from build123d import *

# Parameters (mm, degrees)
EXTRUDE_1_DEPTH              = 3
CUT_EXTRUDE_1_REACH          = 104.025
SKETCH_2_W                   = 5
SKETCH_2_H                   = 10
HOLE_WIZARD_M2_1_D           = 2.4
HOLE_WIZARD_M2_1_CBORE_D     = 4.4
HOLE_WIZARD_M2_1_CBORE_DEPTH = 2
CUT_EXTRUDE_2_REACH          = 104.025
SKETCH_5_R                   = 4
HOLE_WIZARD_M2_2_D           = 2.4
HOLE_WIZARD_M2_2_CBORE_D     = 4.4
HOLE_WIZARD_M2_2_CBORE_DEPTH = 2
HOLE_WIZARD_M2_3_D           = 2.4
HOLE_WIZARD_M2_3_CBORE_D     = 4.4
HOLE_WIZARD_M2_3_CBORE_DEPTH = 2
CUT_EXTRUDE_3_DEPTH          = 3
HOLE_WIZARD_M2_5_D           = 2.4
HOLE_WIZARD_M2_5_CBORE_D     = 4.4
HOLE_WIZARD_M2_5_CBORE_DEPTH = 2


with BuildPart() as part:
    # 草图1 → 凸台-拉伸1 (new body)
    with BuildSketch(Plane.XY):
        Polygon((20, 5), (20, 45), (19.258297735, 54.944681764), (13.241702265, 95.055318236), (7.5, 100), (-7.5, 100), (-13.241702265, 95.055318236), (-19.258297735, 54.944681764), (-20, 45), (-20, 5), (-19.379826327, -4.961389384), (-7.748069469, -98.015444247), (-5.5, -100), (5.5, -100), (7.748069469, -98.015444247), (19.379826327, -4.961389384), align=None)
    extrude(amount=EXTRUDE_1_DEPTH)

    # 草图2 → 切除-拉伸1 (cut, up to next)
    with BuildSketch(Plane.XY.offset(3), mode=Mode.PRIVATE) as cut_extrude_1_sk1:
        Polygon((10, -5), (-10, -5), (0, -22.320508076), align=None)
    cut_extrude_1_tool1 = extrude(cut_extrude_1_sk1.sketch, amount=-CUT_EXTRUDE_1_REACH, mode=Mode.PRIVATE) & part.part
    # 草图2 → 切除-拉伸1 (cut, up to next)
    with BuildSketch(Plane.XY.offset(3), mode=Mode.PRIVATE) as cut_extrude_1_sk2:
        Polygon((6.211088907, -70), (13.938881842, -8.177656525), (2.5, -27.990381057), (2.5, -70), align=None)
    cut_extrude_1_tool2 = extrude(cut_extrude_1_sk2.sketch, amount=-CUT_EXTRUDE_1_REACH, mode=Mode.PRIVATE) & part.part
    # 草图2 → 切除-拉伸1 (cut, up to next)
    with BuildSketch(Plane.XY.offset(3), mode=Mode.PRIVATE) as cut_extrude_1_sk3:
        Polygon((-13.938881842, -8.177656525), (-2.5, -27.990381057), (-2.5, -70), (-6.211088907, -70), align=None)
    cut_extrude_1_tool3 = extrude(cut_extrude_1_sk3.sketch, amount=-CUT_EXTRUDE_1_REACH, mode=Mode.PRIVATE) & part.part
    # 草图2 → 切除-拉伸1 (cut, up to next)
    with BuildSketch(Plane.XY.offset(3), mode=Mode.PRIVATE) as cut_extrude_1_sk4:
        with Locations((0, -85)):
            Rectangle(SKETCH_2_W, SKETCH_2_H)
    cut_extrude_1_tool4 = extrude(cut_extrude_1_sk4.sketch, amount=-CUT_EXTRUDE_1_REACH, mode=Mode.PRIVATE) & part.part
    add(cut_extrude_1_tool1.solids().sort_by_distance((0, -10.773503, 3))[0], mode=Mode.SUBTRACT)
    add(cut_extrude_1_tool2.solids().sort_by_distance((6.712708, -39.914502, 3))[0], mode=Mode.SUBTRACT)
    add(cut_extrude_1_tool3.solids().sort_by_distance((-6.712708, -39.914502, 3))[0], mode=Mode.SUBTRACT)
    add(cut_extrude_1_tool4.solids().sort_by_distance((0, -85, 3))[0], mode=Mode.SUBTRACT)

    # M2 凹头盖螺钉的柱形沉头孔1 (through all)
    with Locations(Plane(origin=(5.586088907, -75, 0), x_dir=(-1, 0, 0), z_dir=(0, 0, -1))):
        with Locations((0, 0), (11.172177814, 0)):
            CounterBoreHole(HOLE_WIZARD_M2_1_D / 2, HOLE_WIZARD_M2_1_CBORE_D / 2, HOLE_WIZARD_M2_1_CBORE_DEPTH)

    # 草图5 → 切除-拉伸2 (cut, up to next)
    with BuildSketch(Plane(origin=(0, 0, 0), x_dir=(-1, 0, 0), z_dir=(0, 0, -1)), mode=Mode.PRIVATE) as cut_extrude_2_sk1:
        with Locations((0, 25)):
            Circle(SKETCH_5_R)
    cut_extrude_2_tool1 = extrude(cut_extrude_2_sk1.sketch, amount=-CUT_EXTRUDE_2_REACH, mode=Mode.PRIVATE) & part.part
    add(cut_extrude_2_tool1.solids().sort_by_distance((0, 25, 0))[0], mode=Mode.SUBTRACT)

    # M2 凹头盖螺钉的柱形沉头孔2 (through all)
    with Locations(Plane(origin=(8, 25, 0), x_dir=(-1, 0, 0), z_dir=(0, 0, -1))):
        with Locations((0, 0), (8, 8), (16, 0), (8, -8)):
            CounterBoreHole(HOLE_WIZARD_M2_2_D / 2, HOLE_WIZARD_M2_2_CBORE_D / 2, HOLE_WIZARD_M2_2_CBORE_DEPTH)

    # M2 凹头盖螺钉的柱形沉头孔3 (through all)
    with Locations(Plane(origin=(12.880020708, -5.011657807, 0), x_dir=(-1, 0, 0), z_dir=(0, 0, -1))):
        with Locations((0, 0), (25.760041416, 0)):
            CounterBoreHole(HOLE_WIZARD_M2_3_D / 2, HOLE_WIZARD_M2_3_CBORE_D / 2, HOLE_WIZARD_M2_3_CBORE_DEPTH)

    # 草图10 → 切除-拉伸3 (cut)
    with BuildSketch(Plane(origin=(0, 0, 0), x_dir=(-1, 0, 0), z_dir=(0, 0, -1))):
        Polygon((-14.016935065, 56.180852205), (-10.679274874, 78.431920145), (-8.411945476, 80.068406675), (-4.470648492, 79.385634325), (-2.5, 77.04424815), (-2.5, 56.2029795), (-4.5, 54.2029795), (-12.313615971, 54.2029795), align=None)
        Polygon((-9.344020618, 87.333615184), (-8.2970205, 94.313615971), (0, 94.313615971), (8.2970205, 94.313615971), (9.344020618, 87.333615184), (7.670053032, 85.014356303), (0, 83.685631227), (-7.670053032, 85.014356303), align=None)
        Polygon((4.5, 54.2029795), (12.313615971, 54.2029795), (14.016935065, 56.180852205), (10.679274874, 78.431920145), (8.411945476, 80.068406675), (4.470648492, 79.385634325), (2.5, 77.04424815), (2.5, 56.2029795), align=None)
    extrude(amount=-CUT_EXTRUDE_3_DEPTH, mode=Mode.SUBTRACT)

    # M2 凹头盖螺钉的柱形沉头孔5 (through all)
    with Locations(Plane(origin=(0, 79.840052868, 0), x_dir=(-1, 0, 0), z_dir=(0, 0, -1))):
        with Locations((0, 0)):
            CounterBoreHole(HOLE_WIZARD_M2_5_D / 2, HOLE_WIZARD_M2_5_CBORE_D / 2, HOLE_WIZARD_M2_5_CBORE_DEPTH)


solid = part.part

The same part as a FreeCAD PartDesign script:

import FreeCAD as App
import Part
import Sketcher
from FreeCAD import Vector
Q = App.Units.Quantity


def add_polygon(sketch, points):
    """Adds a closed chain of lines whose ends are joined by coincident constraints."""
    first, n = sketch.GeometryCount, len(points)
    for a, b in zip(points, points[1:] + points[:1]):
        sketch.addGeometry(Part.LineSegment(App.Vector(*a, 0), App.Vector(*b, 0)), False)
    for i in range(n):
        sketch.addConstraint(Sketcher.Constraint("Coincident", first + i, 2, first + (i + 1) % n, 1))

doc = App.newDocument("Part")
body = doc.addObject("PartDesign::Body", "Body")

sketch1 = body.newObject("Sketcher::SketchObject", "Sketch")
sketch1.AttachmentSupport = (doc.getObject("XY_Plane"), [""])
sketch1.MapMode = "FlatFace"
add_polygon(sketch1, [(20, 5), (20, 45), (19.3, 54.9), (13.2, 95.1), (7.5, 100), (-7.5, 100), (-13.2, 95.1), (-19.3, 54.9), (-20, 45), (-20, 5), (-19.4, -5), (-7.7, -98), (-5.5, -100), (5.5, -100), (7.7, -98), (19.4, -5)])
sketch1.addConstraint(Sketcher.Constraint("Vertical", 0))
sketch1.addConstraint(Sketcher.Constraint("Horizontal", 4))
sketch1.addConstraint(Sketcher.Constraint("Vertical", 8))
sketch1.addConstraint(Sketcher.Constraint("Horizontal", 12))
sketch1.addConstraint(Sketcher.Constraint("Symmetric", 2, 2, 5, 2, -2))
sketch1.addConstraint(Sketcher.Constraint("Symmetric", 1, 2, 6, 2, -2))
sketch1.addConstraint(Sketcher.Constraint("Symmetric", 0, 2, 7, 2, -2))
sketch1.addConstraint(Sketcher.Constraint("Symmetric", 10, 2, 13, 2, -2))
sketch1.addConstraint(Sketcher.Constraint("Symmetric", 9, 2, 14, 2, -2))
sketch1.addConstraint(Sketcher.Constraint("Horizontal", 8, 2, 15, 2))
sketch1.addConstraint(Sketcher.Constraint("Equal", 3, 5))
sketch1.addConstraint(Sketcher.Constraint("Equal", 11, 13))
sketch1.addConstraint(Sketcher.Constraint("DistanceX", 4, 2, 4, 1, Q("15 mm")))
sketch1.addConstraint(Sketcher.Constraint("DistanceX", 12, 1, 12, 2, Q("11 mm")))
sketch1.addConstraint(Sketcher.Constraint("DistanceY", 0, 1, 0, 2, Q("40 mm")))
sketch1.addConstraint(Sketcher.Constraint("DistanceX", -1, 1, 0, 2, Q("20 mm")))
sketch1.addConstraint(Sketcher.Constraint("DistanceY", -1, 1, 0, 2, Q("45 mm")))
sketch1.addConstraint(Sketcher.Constraint("DistanceY", -1, 1, 3, 2, Q("100 mm")))
sketch1.addConstraint(Sketcher.Constraint("DistanceY", 11, 2, -1, 1, Q("100 mm")))
sketch1.addConstraint(Sketcher.Constraint("DistanceX", 5, 2, 1, 2, Q("32.5 mm")))
sketch1.addConstraint(Sketcher.Constraint("Distance", 2, Q("40.559371 mm")))
sketch1.addConstraint(Sketcher.Constraint("Distance", 10, Q("93.778222 mm")))
sketch1.addConstraint(Sketcher.Constraint("DistanceY", -1, 1, 1, 2, Q("54.944682 mm")))
sketch1.addConstraint(Sketcher.Constraint("DistanceY", -1, 1, 2, 2, Q("95.055318 mm")))
sketch1.addConstraint(Sketcher.Constraint("DistanceY", 9, 2, -1, 1, Q("4.961389 mm")))
sketch1.addConstraint(Sketcher.Constraint("DistanceX", 10, 2, -1, 1, Q("7.748069 mm")))
sketch1.addConstraint(Sketcher.Constraint("DistanceX", 9, 2, 6, 2, Q("0.121529 mm")))
pad1 = body.newObject("PartDesign::Pad", "Pad")
pad1.Profile = sketch1
pad1.Length = 3

sketch2 = body.newObject("Sketcher::SketchObject", "Sketch001")
sketch2.AttachmentSupport = (doc.getObject("XY_Plane"), [""])
sketch2.MapMode = "FlatFace"
sketch2.AttachmentOffset = App.Placement(Vector(0, 0, 3), App.Rotation())
add_polygon(sketch2, [(10, -5), (-10, -5), (0, -22)])
sketch2.addConstraint(Sketcher.Constraint("Horizontal", 0))
sketch2.addConstraint(Sketcher.Constraint("PointOnObject", 1, 2, -2))
sketch2.addConstraint(Sketcher.Constraint("Equal", 1, 2))
sketch2.addConstraint(Sketcher.Constraint("DistanceX", 0, 2, 0, 1, Q("20 mm")))
sketch2.addConstraint(Sketcher.Constraint("Angle", 1, Q("-60 deg")))
sketch2.addConstraint(Sketcher.Constraint("DistanceY", 0, 2, -1, 1, Q("5 mm")))
pocket1 = body.newObject("PartDesign::Pocket", "Pocket")
pocket1.Profile = sketch2
pocket1.Type = "UpToFirst"

sketch3 = body.newObject("Sketcher::SketchObject", "Sketch002")
sketch3.AttachmentSupport = (doc.getObject("XY_Plane"), [""])
sketch3.MapMode = "FlatFace"
sketch3.AttachmentOffset = App.Placement(Vector(0, 0, 3), App.Rotation())
add_polygon(sketch3, [(6.2, -70), (13.9, -8.2), (2.5, -28), (2.5, -70)])
sketch3.addConstraint(Sketcher.Constraint("Vertical", 2))
sketch3.addConstraint(Sketcher.Constraint("Horizontal", 3))
sketch3.addConstraint(Sketcher.Constraint("Angle", 1, Q("-120 deg")))
sketch3.addConstraint(Sketcher.Constraint("DistanceY", 2, 2, -1, 1, Q("70 mm")))
sketch3.addConstraint(Sketcher.Constraint("DistanceX", -1, 1, 1, 2, Q("2.5 mm")))
sketch3.addConstraint(Sketcher.Constraint("DistanceX", 3, 1, 3, 2, Q("3.711089 mm")))
sketch3.addConstraint(Sketcher.Constraint("DistanceY", 2, 2, 2, 1, Q("42.009619 mm")))
sketch3.addConstraint(Sketcher.Constraint("Distance", 0, Q("62.303458 mm")))
pocket2 = body.newObject("PartDesign::Pocket", "Pocket001")
pocket2.Profile = sketch3
pocket2.Type = "UpToFirst"

sketch4 = body.newObject("Sketcher::SketchObject", "Sketch003")
sketch4.AttachmentSupport = (doc.getObject("XY_Plane"), [""])
sketch4.MapMode = "FlatFace"
sketch4.AttachmentOffset = App.Placement(Vector(0, 0, 3), App.Rotation())
add_polygon(sketch4, [(-2.5, -28), (-13.9, -8.2), (-6.2, -70), (-2.5, -70)])
sketch4.addConstraint(Sketcher.Constraint("Horizontal", 2))
sketch4.addConstraint(Sketcher.Constraint("Vertical", 3))
sketch4.addConstraint(Sketcher.Constraint("Angle", 0, Q("120 deg")))
sketch4.addConstraint(Sketcher.Constraint("DistanceY", 1, 2, -1, 1, Q("70 mm")))
sketch4.addConstraint(Sketcher.Constraint("DistanceX", 2, 2, -1, 1, Q("2.5 mm")))
sketch4.addConstraint(Sketcher.Constraint("DistanceX", 2, 1, 2, 2, Q("3.711089 mm")))
sketch4.addConstraint(Sketcher.Constraint("DistanceY", 3, 1, 3, 2, Q("42.009619 mm")))
sketch4.addConstraint(Sketcher.Constraint("Distance", 1, Q("62.303458 mm")))
pocket3 = body.newObject("PartDesign::Pocket", "Pocket002")
pocket3.Profile = sketch4
pocket3.Type = "UpToFirst"

sketch5 = body.newObject("Sketcher::SketchObject", "Sketch004")
sketch5.AttachmentSupport = (doc.getObject("XY_Plane"), [""])
sketch5.MapMode = "FlatFace"
sketch5.AttachmentOffset = App.Placement(Vector(0, 0, 3), App.Rotation())
add_polygon(sketch5, [(-2, -80), (-2, -90), (2, -90), (2, -80)])
sketch5.addConstraint(Sketcher.Constraint("Vertical", 0))
sketch5.addConstraint(Sketcher.Constraint("Horizontal", 1))
sketch5.addConstraint(Sketcher.Constraint("Vertical", 2))
sketch5.addConstraint(Sketcher.Constraint("Horizontal", 3))
sketch5.addConstraint(Sketcher.Constraint("DistanceX", 1, 1, 1, 2, Q("5 mm")))
sketch5.addConstraint(Sketcher.Constraint("DistanceY", 0, 2, 0, 1, Q("10 mm")))
sketch5.addConstraint(Sketcher.Constraint("DistanceY", 0, 2, -1, 1, Q("90 mm")))
sketch5.addConstraint(Sketcher.Constraint("DistanceX", 0, 2, -1, 1, Q("2.5 mm")))
pocket4 = body.newObject("PartDesign::Pocket", "Pocket003")
pocket4.Profile = sketch5
pocket4.Type = "UpToFirst"

sketch6 = body.newObject("Sketcher::SketchObject", "Sketch005")
sketch6.AttachmentSupport = (doc.getObject("XY_Plane"), [""])
sketch6.MapMode = "FlatFace"
sketch6.addGeometry(Part.Circle(Vector(5.6, -75, 0), Vector(0, 0, 1), 1.2), False)
sketch6.addGeometry(Part.Circle(Vector(-5.6, -75, 0), Vector(0, 0, 1), 1.2), False)
sketch6.addConstraint(Sketcher.Constraint("Equal", 0, 1))
sketch6.addConstraint(Sketcher.Constraint("Symmetric", 0, 3, 1, 3, -2))
sketch6.addConstraint(Sketcher.Constraint("Diameter", 0, Q("2.4 mm")))
sketch6.addConstraint(Sketcher.Constraint("DistanceY", 0, 3, -1, 1, Q("75 mm")))
sketch6.addConstraint(Sketcher.Constraint("DistanceX", -1, 1, 0, 3, Q("5.586089 mm")))
doc.recompute()
hole = body.newObject("PartDesign::Hole", "Hole")
hole.Profile = sketch6
hole.ThreadType = "None"
hole.Diameter = 2.4
hole.DepthType = "ThroughAll"
hole.HoleCutType = "Counterbore"
hole.HoleCutDiameter = 4.4
hole.HoleCutDepth = 2
hole.Reversed = True

sketch7 = body.newObject("Sketcher::SketchObject", "Sketch006")
sketch7.AttachmentSupport = (doc.getObject("XY_Plane"), [""])
sketch7.MapMode = "FlatFace"
sketch7.addGeometry(Part.Circle(Vector(0, 25, 0), Vector(0, 0, 1), 4), False)
sketch7.addConstraint(Sketcher.Constraint("PointOnObject", 0, 3, -2))
sketch7.addConstraint(Sketcher.Constraint("Diameter", 0, Q("8 mm")))
sketch7.addConstraint(Sketcher.Constraint("DistanceY", -1, 1, 0, 3, Q("25 mm")))
pocket5 = body.newObject("PartDesign::Pocket", "Pocket004")
pocket5.Profile = sketch7
pocket5.Type = "UpToFirst"
pocket5.Reversed = True

sketch8 = body.newObject("Sketcher::SketchObject", "Sketch007")
sketch8.AttachmentSupport = (doc.getObject("XY_Plane"), [""])
sketch8.MapMode = "FlatFace"
sketch8.addGeometry(Part.Circle(Vector(8, 25, 0), Vector(0, 0, 1), 1.2), False)
sketch8.addGeometry(Part.Circle(Vector(0, 33, 0), Vector(0, 0, 1), 1.2), False)
sketch8.addGeometry(Part.Circle(Vector(-8, 25, 0), Vector(0, 0, 1), 1.2), False)
sketch8.addGeometry(Part.Circle(Vector(0, 17, 0), Vector(0, 0, 1), 1.2), False)
sketch8.addConstraint(Sketcher.Constraint("Equal", 0, 1))
sketch8.addConstraint(Sketcher.Constraint("Equal", 1, 2))
sketch8.addConstraint(Sketcher.Constraint("Equal", 2, 3))
sketch8.addConstraint(Sketcher.Constraint("Symmetric", 0, 3, 2, 3, -2))
sketch8.addConstraint(Sketcher.Constraint("PointOnObject", 1, 3, -2))
sketch8.addConstraint(Sketcher.Constraint("PointOnObject", 3, 3, -2))
sketch8.addConstraint(Sketcher.Constraint("Diameter", 0, Q("2.4 mm")))
sketch8.addConstraint(Sketcher.Constraint("DistanceX", -1, 1, 0, 3, Q("8 mm")))
sketch8.addConstraint(Sketcher.Constraint("DistanceY", -1, 1, 0, 3, Q("25 mm")))
sketch8.addConstraint(Sketcher.Constraint("DistanceY", -1, 1, 1, 3, Q("33 mm")))
sketch8.addConstraint(Sketcher.Constraint("DistanceY", -1, 1, 3, 3, Q("17 mm")))
doc.recompute()
hole2 = body.newObject("PartDesign::Hole", "Hole001")
hole2.Profile = sketch8
hole2.ThreadType = "None"
hole2.Diameter = 2.4
hole2.DepthType = "ThroughAll"
hole2.HoleCutType = "Counterbore"
hole2.HoleCutDiameter = 4.4
hole2.HoleCutDepth = 2
hole2.Reversed = True

sketch9 = body.newObject("Sketcher::SketchObject", "Sketch008")
sketch9.AttachmentSupport = (doc.getObject("XY_Plane"), [""])
sketch9.MapMode = "FlatFace"
sketch9.addGeometry(Part.Circle(Vector(12.9, -5, 0), Vector(0, 0, 1), 1.2), False)
sketch9.addGeometry(Part.Circle(Vector(-12.9, -5, 0), Vector(0, 0, 1), 1.2), False)
sketch9.addConstraint(Sketcher.Constraint("Equal", 0, 1))
sketch9.addConstraint(Sketcher.Constraint("Symmetric", 0, 3, 1, 3, -2))
sketch9.addConstraint(Sketcher.Constraint("Diameter", 0, Q("2.4 mm")))
sketch9.addConstraint(Sketcher.Constraint("DistanceX", -1, 1, 0, 3, Q("12.880021 mm")))
sketch9.addConstraint(Sketcher.Constraint("DistanceY", 0, 3, -1, 1, Q("5.011658 mm")))
doc.recompute()
hole3 = body.newObject("PartDesign::Hole", "Hole002")
hole3.Profile = sketch9
hole3.ThreadType = "None"
hole3.Diameter = 2.4
hole3.DepthType = "ThroughAll"
hole3.HoleCutType = "Counterbore"
hole3.HoleCutDiameter = 4.4
hole3.HoleCutDepth = 2
hole3.Reversed = True

sketch10 = body.newObject("Sketcher::SketchObject", "Sketch009")
sketch10.AttachmentSupport = (doc.getObject("XY_Plane"), [""])
sketch10.MapMode = "FlatFace"
add_polygon(sketch10, [(10.7, 78.4), (14, 56.2), (12.3, 54.2), (4.5, 54.2), (2.5, 56.2), (2.5, 77), (4.5, 79.4), (8.4, 80.1)])
add_polygon(sketch10, [(8.3, 94.3), (9.3, 87.3), (7.7, 85), (0, 83.7), (-7.7, 85), (-9.3, 87.3), (-8.3, 94.3)])
add_polygon(sketch10, [(-4.5, 54.2), (-12.3, 54.2), (-14, 56.2), (-10.7, 78.4), (-8.4, 80.1), (-4.5, 79.4), (-2.5, 77), (-2.5, 56.2)])
sketch10.addConstraint(Sketcher.Constraint("Horizontal", 2))
sketch10.addConstraint(Sketcher.Constraint("Vertical", 4))
sketch10.addConstraint(Sketcher.Constraint("Horizontal", 14))
sketch10.addConstraint(Sketcher.Constraint("Horizontal", 15))
sketch10.addConstraint(Sketcher.Constraint("Vertical", 21))
sketch10.addConstraint(Sketcher.Constraint("Symmetric", 9, 2, 11, 2, -2))
sketch10.addConstraint(Sketcher.Constraint("Symmetric", 8, 2, 12, 2, -2))
sketch10.addConstraint(Sketcher.Constraint("Symmetric", 1, 2, 15, 2, -2))
sketch10.addConstraint(Sketcher.Constraint("Symmetric", 0, 2, 16, 2, -2))
sketch10.addConstraint(Sketcher.Constraint("Symmetric", 7, 2, 17, 2, -2))
sketch10.addConstraint(Sketcher.Constraint("Symmetric", 6, 2, 18, 2, -2))
sketch10.addConstraint(Sketcher.Constraint("Symmetric", 5, 2, 19, 2, -2))
sketch10.addConstraint(Sketcher.Constraint("Symmetric", 4, 2, 20, 2, -2))
sketch10.addConstraint(Sketcher.Constraint("PointOnObject", 10, 2, -2))
sketch10.addConstraint(Sketcher.Constraint("Parallel", 0, 8))
sketch10.addConstraint(Sketcher.Constraint("Perpendicular", 7, 9))
sketch10.addConstraint(Sketcher.Constraint("Parallel", 6, 10))
sketch10.addConstraint(Sketcher.Constraint("Parallel", 13, 17))
sketch10.addConstraint(Sketcher.Constraint("Perpendicular", 3, 22))
sketch10.addConstraint(Sketcher.Constraint("Horizontal", 3, 2, 21, 2))
sketch10.addConstraint(Sketcher.Constraint("Equal", 2, 15))
sketch10.addConstraint(Sketcher.Constraint("Distance", 6, Q("4 mm")))
sketch10.addConstraint(Sketcher.Constraint("DistanceX", 3, 2, 2, 2, Q("2 mm")))
sketch10.addConstraint(Sketcher.Constraint("DistanceX", 20, 2, 4, 2, Q("5 mm")))
sketch10.addConstraint(Sketcher.Constraint("Distance", 0, Q("22.5 mm")))
sketch10.addConstraint(Sketcher.Constraint("DistanceY", 12, 2, 13, 2, Q("6.980001 mm")))
sketch10.addConstraint(Sketcher.Constraint("DistanceX", 11, 2, 6, 2, Q("16.081999 mm")))
sketch10.addConstraint(Sketcher.Constraint("DistanceX", 12, 2, 13, 2, Q("1.047 mm")))
sketch10.addConstraint(Sketcher.Constraint("DistanceX", 14, 1, 14, 2, Q("16.594041 mm")))
sketch10.addConstraint(Sketcher.Constraint("DistanceY", 4, 1, 4, 2, Q("20.841269 mm")))
sketch10.addConstraint(Sketcher.Constraint("DistanceX", 11, 2, 5, 2, Q("12.140702 mm")))
sketch10.addConstraint(Sketcher.Constraint("DistanceX", 2, 2, 2, 1, Q("7.813616 mm")))
sketch10.addConstraint(Sketcher.Constraint("DistanceY", -1, 1, 1, 2, Q("54.202979 mm")))
sketch10.addConstraint(Sketcher.Constraint("DistanceX", -1, 1, 5, 2, Q("4.470648 mm")))
sketch10.addConstraint(Sketcher.Constraint("DistanceY", -1, 1, 7, 2, Q("78.43192 mm")))
sketch10.addConstraint(Sketcher.Constraint("DistanceY", -1, 1, 10, 2, Q("83.685631 mm")))
sketch10.addConstraint(Sketcher.Constraint("DistanceX", 1, 2, 0, 2, Q("1.703319 mm")))
sketch10.addConstraint(Sketcher.Constraint("DistanceY", 4, 2, 6, 2, Q("3.024159 mm")))
pocket6 = body.newObject("PartDesign::Pocket", "Pocket005")
pocket6.Profile = sketch10
pocket6.Length = 3
pocket6.Reversed = True

sketch11 = body.newObject("Sketcher::SketchObject", "Sketch010")
sketch11.AttachmentSupport = (doc.getObject("XY_Plane"), [""])
sketch11.MapMode = "FlatFace"
sketch11.addGeometry(Part.Circle(Vector(0, 79.8, 0), Vector(0, 0, 1), 1.2), False)
sketch11.addConstraint(Sketcher.Constraint("PointOnObject", 0, 3, -2))
sketch11.addConstraint(Sketcher.Constraint("Diameter", 0, Q("2.4 mm")))
sketch11.addConstraint(Sketcher.Constraint("DistanceY", -1, 1, 0, 3, Q("79.840053 mm")))
doc.recompute()
hole4 = body.newObject("PartDesign::Hole", "Hole003")
hole4.Profile = sketch11
hole4.ThreadType = "None"
hole4.Diameter = 2.4
hole4.DepthType = "ThroughAll"
hole4.HoleCutType = "Counterbore"
hole4.HoleCutDiameter = 4.4
hole4.HoleCutDepth = 2
hole4.Reversed = True

doc.recompute()
